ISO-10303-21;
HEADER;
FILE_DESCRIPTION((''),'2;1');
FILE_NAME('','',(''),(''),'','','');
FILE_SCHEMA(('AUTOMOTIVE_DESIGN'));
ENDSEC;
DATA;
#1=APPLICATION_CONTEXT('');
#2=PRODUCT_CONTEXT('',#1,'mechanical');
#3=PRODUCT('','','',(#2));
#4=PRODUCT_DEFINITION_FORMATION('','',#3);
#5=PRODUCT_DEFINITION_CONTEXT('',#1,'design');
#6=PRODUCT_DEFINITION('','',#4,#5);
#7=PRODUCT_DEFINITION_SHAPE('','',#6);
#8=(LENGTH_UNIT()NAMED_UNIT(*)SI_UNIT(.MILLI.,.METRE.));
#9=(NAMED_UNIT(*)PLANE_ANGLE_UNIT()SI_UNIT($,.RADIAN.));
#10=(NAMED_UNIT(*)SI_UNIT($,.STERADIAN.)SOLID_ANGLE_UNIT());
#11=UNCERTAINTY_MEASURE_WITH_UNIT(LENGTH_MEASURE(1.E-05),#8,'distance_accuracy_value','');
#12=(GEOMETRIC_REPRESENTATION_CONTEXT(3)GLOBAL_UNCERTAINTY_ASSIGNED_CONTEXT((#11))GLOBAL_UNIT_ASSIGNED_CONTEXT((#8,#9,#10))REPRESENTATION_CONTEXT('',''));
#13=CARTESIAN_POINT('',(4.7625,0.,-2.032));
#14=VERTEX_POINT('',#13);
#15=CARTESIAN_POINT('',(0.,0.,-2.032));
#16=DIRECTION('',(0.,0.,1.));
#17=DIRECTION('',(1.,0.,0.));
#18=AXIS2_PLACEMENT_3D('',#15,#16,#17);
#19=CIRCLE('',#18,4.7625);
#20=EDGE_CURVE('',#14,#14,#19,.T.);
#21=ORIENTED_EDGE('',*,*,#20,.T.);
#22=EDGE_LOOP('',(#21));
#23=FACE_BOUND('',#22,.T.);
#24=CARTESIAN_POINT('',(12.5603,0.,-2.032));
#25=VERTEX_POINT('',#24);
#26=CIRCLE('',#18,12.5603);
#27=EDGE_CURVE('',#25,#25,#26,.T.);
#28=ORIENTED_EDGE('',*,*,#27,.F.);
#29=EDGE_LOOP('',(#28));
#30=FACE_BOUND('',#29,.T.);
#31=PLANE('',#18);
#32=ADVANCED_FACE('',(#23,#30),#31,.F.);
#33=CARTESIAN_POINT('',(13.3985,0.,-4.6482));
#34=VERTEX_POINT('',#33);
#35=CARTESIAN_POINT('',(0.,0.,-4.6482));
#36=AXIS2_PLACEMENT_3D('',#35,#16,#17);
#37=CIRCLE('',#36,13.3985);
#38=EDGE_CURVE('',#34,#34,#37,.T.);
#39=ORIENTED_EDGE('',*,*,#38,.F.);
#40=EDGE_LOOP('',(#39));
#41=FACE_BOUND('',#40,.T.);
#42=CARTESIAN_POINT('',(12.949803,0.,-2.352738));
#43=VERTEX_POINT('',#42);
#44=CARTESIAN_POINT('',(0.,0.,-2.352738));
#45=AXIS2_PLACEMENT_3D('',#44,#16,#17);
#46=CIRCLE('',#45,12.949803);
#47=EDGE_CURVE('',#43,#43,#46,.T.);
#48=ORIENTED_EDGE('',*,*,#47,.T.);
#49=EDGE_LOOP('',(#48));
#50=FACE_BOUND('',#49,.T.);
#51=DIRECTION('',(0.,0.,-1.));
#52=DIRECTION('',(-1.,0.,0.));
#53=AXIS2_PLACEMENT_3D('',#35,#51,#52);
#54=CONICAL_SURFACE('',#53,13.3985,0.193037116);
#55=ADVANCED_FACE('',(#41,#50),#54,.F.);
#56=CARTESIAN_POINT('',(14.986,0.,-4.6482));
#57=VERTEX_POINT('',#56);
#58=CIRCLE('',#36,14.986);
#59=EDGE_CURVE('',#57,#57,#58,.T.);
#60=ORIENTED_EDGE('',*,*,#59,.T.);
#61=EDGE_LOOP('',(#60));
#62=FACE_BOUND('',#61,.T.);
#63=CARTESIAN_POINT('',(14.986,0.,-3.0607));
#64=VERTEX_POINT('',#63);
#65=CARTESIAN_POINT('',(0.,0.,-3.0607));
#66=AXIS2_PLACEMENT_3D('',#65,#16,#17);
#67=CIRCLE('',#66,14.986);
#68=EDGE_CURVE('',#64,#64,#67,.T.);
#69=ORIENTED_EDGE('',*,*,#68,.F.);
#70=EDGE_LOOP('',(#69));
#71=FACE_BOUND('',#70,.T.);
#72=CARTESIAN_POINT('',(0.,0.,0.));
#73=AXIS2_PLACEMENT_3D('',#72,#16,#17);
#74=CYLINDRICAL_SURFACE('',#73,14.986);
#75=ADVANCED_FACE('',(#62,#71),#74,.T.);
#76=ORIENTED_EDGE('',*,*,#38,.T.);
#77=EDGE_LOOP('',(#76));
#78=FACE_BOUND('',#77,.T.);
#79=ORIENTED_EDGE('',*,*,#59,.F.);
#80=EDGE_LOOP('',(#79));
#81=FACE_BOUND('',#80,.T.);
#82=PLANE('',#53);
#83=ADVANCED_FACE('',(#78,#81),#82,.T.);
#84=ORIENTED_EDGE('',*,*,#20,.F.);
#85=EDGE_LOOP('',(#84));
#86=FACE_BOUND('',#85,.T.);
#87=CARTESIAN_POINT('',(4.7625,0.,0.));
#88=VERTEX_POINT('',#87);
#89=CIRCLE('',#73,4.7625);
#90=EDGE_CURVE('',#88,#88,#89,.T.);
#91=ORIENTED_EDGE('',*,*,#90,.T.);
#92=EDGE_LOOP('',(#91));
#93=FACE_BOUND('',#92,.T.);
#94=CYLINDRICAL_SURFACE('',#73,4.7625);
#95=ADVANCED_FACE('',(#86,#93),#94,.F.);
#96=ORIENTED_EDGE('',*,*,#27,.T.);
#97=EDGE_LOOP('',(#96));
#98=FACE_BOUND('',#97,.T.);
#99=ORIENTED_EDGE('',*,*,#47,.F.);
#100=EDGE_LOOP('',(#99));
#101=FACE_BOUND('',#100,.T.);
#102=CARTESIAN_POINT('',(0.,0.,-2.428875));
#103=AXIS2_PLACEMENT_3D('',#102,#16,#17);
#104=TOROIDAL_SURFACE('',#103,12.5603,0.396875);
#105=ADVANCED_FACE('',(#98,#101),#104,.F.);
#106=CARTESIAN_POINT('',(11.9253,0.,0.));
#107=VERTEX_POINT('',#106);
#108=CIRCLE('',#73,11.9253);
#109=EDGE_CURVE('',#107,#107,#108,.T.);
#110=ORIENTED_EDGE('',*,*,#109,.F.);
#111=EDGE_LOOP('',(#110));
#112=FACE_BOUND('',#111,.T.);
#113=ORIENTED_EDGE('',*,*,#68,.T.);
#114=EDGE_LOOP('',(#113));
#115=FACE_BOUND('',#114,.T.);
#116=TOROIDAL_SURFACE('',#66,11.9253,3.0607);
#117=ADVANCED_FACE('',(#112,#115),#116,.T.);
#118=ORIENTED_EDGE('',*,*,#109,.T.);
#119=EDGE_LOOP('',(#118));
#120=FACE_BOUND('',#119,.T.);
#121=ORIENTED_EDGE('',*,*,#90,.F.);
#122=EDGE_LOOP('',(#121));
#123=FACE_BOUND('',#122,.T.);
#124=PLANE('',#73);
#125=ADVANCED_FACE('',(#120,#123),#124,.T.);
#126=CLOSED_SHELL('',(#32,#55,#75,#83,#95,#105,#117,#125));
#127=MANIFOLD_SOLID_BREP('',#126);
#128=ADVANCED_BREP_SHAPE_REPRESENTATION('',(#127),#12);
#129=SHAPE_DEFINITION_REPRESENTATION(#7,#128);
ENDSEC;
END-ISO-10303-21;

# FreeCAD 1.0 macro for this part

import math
import FreeCAD as App
import Part
import Sketcher
from FreeCAD import Vector
Q = App.Units.Quantity

doc = App.newDocument("Part")
body = doc.addObject("PartDesign::Body", "Body")

sketch1 = doc.addObject("Sketcher::SketchObject", "Sketch")
body.addObject(sketch1)
sketch1.AttachmentSupport = (doc.XZ_Plane, [""])
sketch1.MapMode = "FlatFace"
sketch1.addGeometry([
    Part.ArcOfCircle(Part.Circle(Vector(12.56, -2.43, 0), Vector(0, 0, 1), 0.4), math.radians(11), math.radians(90)),
    Part.LineSegment(Vector(12.56, -2.03, 0), Vector(4.76, -2.03, 0)),
    Part.LineSegment(Vector(4.76, -2.03, 0), Vector(4.76, 0, 0)),
    Part.LineSegment(Vector(4.76, 0, 0), Vector(11.93, 0, 0)),
    Part.ArcOfCircle(Part.Circle(Vector(11.93, -3.06, 0), Vector(0, 0, 1), 3.06), math.radians(0), math.radians(90)),
    Part.LineSegment(Vector(14.99, -3.06, 0), Vector(14.99, -4.65, 0)),
    Part.LineSegment(Vector(14.99, -4.65, 0), Vector(13.4, -4.65, 0)),
    Part.LineSegment(Vector(13.4, -4.65, 0), Vector(12.95, -2.35, 0)),
], False)
sketch1.addConstraint([
    Sketcher.Constraint("Tangent", 0, 2, 1, 1),
    Sketcher.Constraint("Coincident", 1, 2, 2, 1),
    Sketcher.Constraint("Coincident", 2, 2, 3, 1),
    Sketcher.Constraint("Tangent", 3, 2, 4, 2),
    Sketcher.Constraint("Tangent", 4, 1, 5, 1),
    Sketcher.Constraint("Coincident", 5, 2, 6, 1),
    Sketcher.Constraint("Coincident", 6, 2, 7, 1),
    Sketcher.Constraint("Tangent", 7, 2, 0, 1),
    Sketcher.Constraint("Horizontal", 1),
    Sketcher.Constraint("Vertical", 2),
    Sketcher.Constraint("Horizontal", 3),
    Sketcher.Constraint("Vertical", 5),
    Sketcher.Constraint("Horizontal", 6),
    Sketcher.Constraint("PointOnObject", 2, 2, -1),
    Sketcher.Constraint("Equal", 6, 5),
    Sketcher.Constraint("Radius", 0, Q("0.015625 in")),
    Sketcher.Constraint("DistanceY", 2, 1, 2, 2, Q("0.08 in")),
    Sketcher.Constraint("Radius", 4, Q("0.1205 in")),
    Sketcher.Constraint("DistanceX", 1, 2, 1, 1, Q("0.307 in")),
    Sketcher.Constraint("DistanceX", 3, 1, 3, 2, Q("0.282 in")),
    Sketcher.Constraint("DistanceX", 6, 2, 6, 1, Q("0.0625 in")),
    Sketcher.Constraint("DistanceX", -1, 1, 4, 1, Q("0.59 in")),
])
revolution = doc.addObject("PartDesign::Revolution", "Revolution")
body.addObject(revolution)
revolution.Profile = sketch1
revolution.ReferenceAxis = (sketch1, ["V_Axis"])
revolution.Angle = 360

doc.recompute()
